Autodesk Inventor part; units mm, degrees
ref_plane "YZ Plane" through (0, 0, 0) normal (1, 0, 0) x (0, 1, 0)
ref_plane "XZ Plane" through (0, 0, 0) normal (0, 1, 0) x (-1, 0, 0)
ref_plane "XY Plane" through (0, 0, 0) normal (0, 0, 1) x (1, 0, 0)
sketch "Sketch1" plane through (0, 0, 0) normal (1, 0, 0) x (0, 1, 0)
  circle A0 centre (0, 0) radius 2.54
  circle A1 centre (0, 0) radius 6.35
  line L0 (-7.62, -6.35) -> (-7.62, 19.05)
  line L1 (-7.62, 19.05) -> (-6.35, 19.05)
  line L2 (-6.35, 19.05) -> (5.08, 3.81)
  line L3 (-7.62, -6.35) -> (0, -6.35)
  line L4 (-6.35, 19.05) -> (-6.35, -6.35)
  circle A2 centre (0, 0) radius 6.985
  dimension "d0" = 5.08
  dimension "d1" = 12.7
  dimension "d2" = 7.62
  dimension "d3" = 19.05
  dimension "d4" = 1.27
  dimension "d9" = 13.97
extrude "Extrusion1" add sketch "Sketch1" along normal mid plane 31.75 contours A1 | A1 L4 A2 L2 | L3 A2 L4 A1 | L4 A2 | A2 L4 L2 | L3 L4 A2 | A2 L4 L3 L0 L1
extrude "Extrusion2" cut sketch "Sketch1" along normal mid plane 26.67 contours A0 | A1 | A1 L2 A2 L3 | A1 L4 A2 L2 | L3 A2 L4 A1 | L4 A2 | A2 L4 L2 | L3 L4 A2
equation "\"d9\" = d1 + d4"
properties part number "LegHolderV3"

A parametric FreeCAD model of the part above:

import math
import FreeCAD as App
import Part
import Sketcher

V = App.Vector
Q = App.Units.Quantity

doc = App.newDocument("Part")
params = doc.addObject("Spreadsheet::Sheet", "Params")
for row, (alias, value) in enumerate([
    ("sketch1_diameter", "0.2 in"),
    ("sketch1_radius", "0.25 in"),
    ("sketch1_width", "0.3 in"),
    ("sketch1_width2", "0.05 in"),
    ("pad1_length", "1.25 in"),
    ("sketch2_radius", "0.275 in"),
    ("pocket1_length", "1.05 in"),
], start=1):
    params.set(f"A{row}", alias)
    params.set(f"B{row}", "=" + value)
    params.setAlias(f"B{row}", alias)

body = doc.addObject("PartDesign::Body", "Body")

sketch1 = doc.addObject("Sketcher::SketchObject", "Sketch")
body.addObject(sketch1)
sketch1.AttachmentSupport = (doc.YZ_Plane, [""])
sketch1.MapMode = "FlatFace"
sketch1.addGeometry([
    Part.ArcOfCircle(Part.Circle(V(0, 0, 0), V(0, 0, 1), 6.35), math.radians(-90), math.radians(36.869898)),
    Part.LineSegment(V(5.08, 3.81, 0), V(-6.35, 19.05, 0)),
    Part.LineSegment(V(-6.35, 19.05, 0), V(-7.62, 19.05, 0)),
    Part.LineSegment(V(-7.62, 19.05, 0), V(-7.62, -6.35, 0)),
    Part.LineSegment(V(-7.62, -6.35, 0), V(0, -6.35, 0)),
    Part.Circle(V(0, 0, 0), V(0, 0, 1), 2.54),
], False)
sketch1.addConstraint([
    Sketcher.Constraint("Tangent", 0, 2, 1, 1),
    Sketcher.Constraint("Coincident", 1, 2, 2, 1),
    Sketcher.Constraint("Coincident", 2, 2, 3, 1),
    Sketcher.Constraint("Coincident", 3, 2, 4, 1),
    Sketcher.Constraint("Tangent", 4, 2, 0, 1),
    Sketcher.Constraint("Horizontal", 2),
    Sketcher.Constraint("Vertical", 3),
    Sketcher.Constraint("Horizontal", 4),
    Sketcher.Constraint("Coincident", 0, 3, -1, 1),
    Sketcher.Constraint("Coincident", 5, 3, -1, 1),
    Sketcher.Constraint("Diameter", 5, Q("0.2 in")),
    Sketcher.Constraint("Radius", 0, Q("0.25 in")),
    Sketcher.Constraint("DistanceX", 4, 1, 4, 2, Q("0.3 in")),
    Sketcher.Constraint("DistanceX", 2, 2, 2, 1, Q("0.05 in")),
    Sketcher.Constraint("DistanceX", -1, 1, 0, 2, Q("0.2 in")),
])
sketch1.setExpression("Constraints[10]", "Params.sketch1_diameter")
sketch1.setExpression("Constraints[11]", "Params.sketch1_radius")
sketch1.setExpression("Constraints[12]", "Params.sketch1_width")
sketch1.setExpression("Constraints[13]", "Params.sketch1_width2")
pad1 = doc.addObject("PartDesign::Pad", "Pad")
body.addObject(pad1)
pad1.Profile = sketch1
pad1.setExpression("Length", "Params.pad1_length")
pad1.Midplane = True

sketch2 = doc.addObject("Sketcher::SketchObject", "Sketch001")
body.addObject(sketch2)
sketch2.AttachmentSupport = (doc.YZ_Plane, [""])
sketch2.MapMode = "FlatFace"
sketch2.addGeometry([
    Part.LineSegment(V(3.334039, 6.137948, 0), V(-6.35, 19.05, 0)),
    Part.LineSegment(V(-6.35, 19.05, 0), V(-6.35, 2.909936, 0)),
    Part.ArcOfCircle(Part.Circle(V(0, 0, 0), V(0, 0, 1), 6.985), math.radians(155.380023), math.radians(204.619977)),
    Part.LineSegment(V(-6.35, -2.909936, 0), V(-6.35, -6.35, 0)),
    Part.LineSegment(V(-6.35, -6.35, 0), V(-2.909936, -6.35, 0)),
    Part.ArcOfCircle(Part.Circle(V(0, 0, 0), V(0, 0, 1), 6.985), math.radians(-114.619977), math.radians(61.489875)),
], False)
sketch2.addConstraint([
    Sketcher.Constraint("Coincident", 0, 2, 1, 1),
    Sketcher.Constraint("Coincident", 1, 2, 2, 1),
    Sketcher.Constraint("Coincident", 2, 2, 3, 1),
    Sketcher.Constraint("Coincident", 3, 2, 4, 1),
    Sketcher.Constraint("Coincident", 4, 2, 5, 1),
    Sketcher.Constraint("Coincident", 5, 2, 0, 1),
    Sketcher.Constraint("Vertical", 1),
    Sketcher.Constraint("Vertical", 3),
    Sketcher.Constraint("Horizontal", 4),
    Sketcher.Constraint("Coincident", 2, 3, -1, 1),
    Sketcher.Constraint("Coincident", 5, 3, -1, 1),
    Sketcher.Constraint("Equal", 2, 5),
    Sketcher.Constraint("Vertical", 1, 2, 2, 2),
    Sketcher.Constraint("Equal", 4, 3),
    Sketcher.Constraint("Radius", 2, Q("0.275 in")),
    Sketcher.Constraint("DistanceY", -1, 1, 0, 2, Q("0.75 in")),
    Sketcher.Constraint("DistanceY", 3, 2, 0, 2, Q("1 in")),
    Sketcher.Constraint("Angle", 0, Q("126.87 deg")),
])
sketch2.setExpression("Constraints[14]", "Params.sketch2_radius")
pocket1 = doc.addObject("PartDesign::Pocket", "Pocket")
body.addObject(pocket1)
pocket1.Profile = sketch2
pocket1.setExpression("Length", "Params.pocket1_length")
pocket1.Midplane = True

doc.recompute()
